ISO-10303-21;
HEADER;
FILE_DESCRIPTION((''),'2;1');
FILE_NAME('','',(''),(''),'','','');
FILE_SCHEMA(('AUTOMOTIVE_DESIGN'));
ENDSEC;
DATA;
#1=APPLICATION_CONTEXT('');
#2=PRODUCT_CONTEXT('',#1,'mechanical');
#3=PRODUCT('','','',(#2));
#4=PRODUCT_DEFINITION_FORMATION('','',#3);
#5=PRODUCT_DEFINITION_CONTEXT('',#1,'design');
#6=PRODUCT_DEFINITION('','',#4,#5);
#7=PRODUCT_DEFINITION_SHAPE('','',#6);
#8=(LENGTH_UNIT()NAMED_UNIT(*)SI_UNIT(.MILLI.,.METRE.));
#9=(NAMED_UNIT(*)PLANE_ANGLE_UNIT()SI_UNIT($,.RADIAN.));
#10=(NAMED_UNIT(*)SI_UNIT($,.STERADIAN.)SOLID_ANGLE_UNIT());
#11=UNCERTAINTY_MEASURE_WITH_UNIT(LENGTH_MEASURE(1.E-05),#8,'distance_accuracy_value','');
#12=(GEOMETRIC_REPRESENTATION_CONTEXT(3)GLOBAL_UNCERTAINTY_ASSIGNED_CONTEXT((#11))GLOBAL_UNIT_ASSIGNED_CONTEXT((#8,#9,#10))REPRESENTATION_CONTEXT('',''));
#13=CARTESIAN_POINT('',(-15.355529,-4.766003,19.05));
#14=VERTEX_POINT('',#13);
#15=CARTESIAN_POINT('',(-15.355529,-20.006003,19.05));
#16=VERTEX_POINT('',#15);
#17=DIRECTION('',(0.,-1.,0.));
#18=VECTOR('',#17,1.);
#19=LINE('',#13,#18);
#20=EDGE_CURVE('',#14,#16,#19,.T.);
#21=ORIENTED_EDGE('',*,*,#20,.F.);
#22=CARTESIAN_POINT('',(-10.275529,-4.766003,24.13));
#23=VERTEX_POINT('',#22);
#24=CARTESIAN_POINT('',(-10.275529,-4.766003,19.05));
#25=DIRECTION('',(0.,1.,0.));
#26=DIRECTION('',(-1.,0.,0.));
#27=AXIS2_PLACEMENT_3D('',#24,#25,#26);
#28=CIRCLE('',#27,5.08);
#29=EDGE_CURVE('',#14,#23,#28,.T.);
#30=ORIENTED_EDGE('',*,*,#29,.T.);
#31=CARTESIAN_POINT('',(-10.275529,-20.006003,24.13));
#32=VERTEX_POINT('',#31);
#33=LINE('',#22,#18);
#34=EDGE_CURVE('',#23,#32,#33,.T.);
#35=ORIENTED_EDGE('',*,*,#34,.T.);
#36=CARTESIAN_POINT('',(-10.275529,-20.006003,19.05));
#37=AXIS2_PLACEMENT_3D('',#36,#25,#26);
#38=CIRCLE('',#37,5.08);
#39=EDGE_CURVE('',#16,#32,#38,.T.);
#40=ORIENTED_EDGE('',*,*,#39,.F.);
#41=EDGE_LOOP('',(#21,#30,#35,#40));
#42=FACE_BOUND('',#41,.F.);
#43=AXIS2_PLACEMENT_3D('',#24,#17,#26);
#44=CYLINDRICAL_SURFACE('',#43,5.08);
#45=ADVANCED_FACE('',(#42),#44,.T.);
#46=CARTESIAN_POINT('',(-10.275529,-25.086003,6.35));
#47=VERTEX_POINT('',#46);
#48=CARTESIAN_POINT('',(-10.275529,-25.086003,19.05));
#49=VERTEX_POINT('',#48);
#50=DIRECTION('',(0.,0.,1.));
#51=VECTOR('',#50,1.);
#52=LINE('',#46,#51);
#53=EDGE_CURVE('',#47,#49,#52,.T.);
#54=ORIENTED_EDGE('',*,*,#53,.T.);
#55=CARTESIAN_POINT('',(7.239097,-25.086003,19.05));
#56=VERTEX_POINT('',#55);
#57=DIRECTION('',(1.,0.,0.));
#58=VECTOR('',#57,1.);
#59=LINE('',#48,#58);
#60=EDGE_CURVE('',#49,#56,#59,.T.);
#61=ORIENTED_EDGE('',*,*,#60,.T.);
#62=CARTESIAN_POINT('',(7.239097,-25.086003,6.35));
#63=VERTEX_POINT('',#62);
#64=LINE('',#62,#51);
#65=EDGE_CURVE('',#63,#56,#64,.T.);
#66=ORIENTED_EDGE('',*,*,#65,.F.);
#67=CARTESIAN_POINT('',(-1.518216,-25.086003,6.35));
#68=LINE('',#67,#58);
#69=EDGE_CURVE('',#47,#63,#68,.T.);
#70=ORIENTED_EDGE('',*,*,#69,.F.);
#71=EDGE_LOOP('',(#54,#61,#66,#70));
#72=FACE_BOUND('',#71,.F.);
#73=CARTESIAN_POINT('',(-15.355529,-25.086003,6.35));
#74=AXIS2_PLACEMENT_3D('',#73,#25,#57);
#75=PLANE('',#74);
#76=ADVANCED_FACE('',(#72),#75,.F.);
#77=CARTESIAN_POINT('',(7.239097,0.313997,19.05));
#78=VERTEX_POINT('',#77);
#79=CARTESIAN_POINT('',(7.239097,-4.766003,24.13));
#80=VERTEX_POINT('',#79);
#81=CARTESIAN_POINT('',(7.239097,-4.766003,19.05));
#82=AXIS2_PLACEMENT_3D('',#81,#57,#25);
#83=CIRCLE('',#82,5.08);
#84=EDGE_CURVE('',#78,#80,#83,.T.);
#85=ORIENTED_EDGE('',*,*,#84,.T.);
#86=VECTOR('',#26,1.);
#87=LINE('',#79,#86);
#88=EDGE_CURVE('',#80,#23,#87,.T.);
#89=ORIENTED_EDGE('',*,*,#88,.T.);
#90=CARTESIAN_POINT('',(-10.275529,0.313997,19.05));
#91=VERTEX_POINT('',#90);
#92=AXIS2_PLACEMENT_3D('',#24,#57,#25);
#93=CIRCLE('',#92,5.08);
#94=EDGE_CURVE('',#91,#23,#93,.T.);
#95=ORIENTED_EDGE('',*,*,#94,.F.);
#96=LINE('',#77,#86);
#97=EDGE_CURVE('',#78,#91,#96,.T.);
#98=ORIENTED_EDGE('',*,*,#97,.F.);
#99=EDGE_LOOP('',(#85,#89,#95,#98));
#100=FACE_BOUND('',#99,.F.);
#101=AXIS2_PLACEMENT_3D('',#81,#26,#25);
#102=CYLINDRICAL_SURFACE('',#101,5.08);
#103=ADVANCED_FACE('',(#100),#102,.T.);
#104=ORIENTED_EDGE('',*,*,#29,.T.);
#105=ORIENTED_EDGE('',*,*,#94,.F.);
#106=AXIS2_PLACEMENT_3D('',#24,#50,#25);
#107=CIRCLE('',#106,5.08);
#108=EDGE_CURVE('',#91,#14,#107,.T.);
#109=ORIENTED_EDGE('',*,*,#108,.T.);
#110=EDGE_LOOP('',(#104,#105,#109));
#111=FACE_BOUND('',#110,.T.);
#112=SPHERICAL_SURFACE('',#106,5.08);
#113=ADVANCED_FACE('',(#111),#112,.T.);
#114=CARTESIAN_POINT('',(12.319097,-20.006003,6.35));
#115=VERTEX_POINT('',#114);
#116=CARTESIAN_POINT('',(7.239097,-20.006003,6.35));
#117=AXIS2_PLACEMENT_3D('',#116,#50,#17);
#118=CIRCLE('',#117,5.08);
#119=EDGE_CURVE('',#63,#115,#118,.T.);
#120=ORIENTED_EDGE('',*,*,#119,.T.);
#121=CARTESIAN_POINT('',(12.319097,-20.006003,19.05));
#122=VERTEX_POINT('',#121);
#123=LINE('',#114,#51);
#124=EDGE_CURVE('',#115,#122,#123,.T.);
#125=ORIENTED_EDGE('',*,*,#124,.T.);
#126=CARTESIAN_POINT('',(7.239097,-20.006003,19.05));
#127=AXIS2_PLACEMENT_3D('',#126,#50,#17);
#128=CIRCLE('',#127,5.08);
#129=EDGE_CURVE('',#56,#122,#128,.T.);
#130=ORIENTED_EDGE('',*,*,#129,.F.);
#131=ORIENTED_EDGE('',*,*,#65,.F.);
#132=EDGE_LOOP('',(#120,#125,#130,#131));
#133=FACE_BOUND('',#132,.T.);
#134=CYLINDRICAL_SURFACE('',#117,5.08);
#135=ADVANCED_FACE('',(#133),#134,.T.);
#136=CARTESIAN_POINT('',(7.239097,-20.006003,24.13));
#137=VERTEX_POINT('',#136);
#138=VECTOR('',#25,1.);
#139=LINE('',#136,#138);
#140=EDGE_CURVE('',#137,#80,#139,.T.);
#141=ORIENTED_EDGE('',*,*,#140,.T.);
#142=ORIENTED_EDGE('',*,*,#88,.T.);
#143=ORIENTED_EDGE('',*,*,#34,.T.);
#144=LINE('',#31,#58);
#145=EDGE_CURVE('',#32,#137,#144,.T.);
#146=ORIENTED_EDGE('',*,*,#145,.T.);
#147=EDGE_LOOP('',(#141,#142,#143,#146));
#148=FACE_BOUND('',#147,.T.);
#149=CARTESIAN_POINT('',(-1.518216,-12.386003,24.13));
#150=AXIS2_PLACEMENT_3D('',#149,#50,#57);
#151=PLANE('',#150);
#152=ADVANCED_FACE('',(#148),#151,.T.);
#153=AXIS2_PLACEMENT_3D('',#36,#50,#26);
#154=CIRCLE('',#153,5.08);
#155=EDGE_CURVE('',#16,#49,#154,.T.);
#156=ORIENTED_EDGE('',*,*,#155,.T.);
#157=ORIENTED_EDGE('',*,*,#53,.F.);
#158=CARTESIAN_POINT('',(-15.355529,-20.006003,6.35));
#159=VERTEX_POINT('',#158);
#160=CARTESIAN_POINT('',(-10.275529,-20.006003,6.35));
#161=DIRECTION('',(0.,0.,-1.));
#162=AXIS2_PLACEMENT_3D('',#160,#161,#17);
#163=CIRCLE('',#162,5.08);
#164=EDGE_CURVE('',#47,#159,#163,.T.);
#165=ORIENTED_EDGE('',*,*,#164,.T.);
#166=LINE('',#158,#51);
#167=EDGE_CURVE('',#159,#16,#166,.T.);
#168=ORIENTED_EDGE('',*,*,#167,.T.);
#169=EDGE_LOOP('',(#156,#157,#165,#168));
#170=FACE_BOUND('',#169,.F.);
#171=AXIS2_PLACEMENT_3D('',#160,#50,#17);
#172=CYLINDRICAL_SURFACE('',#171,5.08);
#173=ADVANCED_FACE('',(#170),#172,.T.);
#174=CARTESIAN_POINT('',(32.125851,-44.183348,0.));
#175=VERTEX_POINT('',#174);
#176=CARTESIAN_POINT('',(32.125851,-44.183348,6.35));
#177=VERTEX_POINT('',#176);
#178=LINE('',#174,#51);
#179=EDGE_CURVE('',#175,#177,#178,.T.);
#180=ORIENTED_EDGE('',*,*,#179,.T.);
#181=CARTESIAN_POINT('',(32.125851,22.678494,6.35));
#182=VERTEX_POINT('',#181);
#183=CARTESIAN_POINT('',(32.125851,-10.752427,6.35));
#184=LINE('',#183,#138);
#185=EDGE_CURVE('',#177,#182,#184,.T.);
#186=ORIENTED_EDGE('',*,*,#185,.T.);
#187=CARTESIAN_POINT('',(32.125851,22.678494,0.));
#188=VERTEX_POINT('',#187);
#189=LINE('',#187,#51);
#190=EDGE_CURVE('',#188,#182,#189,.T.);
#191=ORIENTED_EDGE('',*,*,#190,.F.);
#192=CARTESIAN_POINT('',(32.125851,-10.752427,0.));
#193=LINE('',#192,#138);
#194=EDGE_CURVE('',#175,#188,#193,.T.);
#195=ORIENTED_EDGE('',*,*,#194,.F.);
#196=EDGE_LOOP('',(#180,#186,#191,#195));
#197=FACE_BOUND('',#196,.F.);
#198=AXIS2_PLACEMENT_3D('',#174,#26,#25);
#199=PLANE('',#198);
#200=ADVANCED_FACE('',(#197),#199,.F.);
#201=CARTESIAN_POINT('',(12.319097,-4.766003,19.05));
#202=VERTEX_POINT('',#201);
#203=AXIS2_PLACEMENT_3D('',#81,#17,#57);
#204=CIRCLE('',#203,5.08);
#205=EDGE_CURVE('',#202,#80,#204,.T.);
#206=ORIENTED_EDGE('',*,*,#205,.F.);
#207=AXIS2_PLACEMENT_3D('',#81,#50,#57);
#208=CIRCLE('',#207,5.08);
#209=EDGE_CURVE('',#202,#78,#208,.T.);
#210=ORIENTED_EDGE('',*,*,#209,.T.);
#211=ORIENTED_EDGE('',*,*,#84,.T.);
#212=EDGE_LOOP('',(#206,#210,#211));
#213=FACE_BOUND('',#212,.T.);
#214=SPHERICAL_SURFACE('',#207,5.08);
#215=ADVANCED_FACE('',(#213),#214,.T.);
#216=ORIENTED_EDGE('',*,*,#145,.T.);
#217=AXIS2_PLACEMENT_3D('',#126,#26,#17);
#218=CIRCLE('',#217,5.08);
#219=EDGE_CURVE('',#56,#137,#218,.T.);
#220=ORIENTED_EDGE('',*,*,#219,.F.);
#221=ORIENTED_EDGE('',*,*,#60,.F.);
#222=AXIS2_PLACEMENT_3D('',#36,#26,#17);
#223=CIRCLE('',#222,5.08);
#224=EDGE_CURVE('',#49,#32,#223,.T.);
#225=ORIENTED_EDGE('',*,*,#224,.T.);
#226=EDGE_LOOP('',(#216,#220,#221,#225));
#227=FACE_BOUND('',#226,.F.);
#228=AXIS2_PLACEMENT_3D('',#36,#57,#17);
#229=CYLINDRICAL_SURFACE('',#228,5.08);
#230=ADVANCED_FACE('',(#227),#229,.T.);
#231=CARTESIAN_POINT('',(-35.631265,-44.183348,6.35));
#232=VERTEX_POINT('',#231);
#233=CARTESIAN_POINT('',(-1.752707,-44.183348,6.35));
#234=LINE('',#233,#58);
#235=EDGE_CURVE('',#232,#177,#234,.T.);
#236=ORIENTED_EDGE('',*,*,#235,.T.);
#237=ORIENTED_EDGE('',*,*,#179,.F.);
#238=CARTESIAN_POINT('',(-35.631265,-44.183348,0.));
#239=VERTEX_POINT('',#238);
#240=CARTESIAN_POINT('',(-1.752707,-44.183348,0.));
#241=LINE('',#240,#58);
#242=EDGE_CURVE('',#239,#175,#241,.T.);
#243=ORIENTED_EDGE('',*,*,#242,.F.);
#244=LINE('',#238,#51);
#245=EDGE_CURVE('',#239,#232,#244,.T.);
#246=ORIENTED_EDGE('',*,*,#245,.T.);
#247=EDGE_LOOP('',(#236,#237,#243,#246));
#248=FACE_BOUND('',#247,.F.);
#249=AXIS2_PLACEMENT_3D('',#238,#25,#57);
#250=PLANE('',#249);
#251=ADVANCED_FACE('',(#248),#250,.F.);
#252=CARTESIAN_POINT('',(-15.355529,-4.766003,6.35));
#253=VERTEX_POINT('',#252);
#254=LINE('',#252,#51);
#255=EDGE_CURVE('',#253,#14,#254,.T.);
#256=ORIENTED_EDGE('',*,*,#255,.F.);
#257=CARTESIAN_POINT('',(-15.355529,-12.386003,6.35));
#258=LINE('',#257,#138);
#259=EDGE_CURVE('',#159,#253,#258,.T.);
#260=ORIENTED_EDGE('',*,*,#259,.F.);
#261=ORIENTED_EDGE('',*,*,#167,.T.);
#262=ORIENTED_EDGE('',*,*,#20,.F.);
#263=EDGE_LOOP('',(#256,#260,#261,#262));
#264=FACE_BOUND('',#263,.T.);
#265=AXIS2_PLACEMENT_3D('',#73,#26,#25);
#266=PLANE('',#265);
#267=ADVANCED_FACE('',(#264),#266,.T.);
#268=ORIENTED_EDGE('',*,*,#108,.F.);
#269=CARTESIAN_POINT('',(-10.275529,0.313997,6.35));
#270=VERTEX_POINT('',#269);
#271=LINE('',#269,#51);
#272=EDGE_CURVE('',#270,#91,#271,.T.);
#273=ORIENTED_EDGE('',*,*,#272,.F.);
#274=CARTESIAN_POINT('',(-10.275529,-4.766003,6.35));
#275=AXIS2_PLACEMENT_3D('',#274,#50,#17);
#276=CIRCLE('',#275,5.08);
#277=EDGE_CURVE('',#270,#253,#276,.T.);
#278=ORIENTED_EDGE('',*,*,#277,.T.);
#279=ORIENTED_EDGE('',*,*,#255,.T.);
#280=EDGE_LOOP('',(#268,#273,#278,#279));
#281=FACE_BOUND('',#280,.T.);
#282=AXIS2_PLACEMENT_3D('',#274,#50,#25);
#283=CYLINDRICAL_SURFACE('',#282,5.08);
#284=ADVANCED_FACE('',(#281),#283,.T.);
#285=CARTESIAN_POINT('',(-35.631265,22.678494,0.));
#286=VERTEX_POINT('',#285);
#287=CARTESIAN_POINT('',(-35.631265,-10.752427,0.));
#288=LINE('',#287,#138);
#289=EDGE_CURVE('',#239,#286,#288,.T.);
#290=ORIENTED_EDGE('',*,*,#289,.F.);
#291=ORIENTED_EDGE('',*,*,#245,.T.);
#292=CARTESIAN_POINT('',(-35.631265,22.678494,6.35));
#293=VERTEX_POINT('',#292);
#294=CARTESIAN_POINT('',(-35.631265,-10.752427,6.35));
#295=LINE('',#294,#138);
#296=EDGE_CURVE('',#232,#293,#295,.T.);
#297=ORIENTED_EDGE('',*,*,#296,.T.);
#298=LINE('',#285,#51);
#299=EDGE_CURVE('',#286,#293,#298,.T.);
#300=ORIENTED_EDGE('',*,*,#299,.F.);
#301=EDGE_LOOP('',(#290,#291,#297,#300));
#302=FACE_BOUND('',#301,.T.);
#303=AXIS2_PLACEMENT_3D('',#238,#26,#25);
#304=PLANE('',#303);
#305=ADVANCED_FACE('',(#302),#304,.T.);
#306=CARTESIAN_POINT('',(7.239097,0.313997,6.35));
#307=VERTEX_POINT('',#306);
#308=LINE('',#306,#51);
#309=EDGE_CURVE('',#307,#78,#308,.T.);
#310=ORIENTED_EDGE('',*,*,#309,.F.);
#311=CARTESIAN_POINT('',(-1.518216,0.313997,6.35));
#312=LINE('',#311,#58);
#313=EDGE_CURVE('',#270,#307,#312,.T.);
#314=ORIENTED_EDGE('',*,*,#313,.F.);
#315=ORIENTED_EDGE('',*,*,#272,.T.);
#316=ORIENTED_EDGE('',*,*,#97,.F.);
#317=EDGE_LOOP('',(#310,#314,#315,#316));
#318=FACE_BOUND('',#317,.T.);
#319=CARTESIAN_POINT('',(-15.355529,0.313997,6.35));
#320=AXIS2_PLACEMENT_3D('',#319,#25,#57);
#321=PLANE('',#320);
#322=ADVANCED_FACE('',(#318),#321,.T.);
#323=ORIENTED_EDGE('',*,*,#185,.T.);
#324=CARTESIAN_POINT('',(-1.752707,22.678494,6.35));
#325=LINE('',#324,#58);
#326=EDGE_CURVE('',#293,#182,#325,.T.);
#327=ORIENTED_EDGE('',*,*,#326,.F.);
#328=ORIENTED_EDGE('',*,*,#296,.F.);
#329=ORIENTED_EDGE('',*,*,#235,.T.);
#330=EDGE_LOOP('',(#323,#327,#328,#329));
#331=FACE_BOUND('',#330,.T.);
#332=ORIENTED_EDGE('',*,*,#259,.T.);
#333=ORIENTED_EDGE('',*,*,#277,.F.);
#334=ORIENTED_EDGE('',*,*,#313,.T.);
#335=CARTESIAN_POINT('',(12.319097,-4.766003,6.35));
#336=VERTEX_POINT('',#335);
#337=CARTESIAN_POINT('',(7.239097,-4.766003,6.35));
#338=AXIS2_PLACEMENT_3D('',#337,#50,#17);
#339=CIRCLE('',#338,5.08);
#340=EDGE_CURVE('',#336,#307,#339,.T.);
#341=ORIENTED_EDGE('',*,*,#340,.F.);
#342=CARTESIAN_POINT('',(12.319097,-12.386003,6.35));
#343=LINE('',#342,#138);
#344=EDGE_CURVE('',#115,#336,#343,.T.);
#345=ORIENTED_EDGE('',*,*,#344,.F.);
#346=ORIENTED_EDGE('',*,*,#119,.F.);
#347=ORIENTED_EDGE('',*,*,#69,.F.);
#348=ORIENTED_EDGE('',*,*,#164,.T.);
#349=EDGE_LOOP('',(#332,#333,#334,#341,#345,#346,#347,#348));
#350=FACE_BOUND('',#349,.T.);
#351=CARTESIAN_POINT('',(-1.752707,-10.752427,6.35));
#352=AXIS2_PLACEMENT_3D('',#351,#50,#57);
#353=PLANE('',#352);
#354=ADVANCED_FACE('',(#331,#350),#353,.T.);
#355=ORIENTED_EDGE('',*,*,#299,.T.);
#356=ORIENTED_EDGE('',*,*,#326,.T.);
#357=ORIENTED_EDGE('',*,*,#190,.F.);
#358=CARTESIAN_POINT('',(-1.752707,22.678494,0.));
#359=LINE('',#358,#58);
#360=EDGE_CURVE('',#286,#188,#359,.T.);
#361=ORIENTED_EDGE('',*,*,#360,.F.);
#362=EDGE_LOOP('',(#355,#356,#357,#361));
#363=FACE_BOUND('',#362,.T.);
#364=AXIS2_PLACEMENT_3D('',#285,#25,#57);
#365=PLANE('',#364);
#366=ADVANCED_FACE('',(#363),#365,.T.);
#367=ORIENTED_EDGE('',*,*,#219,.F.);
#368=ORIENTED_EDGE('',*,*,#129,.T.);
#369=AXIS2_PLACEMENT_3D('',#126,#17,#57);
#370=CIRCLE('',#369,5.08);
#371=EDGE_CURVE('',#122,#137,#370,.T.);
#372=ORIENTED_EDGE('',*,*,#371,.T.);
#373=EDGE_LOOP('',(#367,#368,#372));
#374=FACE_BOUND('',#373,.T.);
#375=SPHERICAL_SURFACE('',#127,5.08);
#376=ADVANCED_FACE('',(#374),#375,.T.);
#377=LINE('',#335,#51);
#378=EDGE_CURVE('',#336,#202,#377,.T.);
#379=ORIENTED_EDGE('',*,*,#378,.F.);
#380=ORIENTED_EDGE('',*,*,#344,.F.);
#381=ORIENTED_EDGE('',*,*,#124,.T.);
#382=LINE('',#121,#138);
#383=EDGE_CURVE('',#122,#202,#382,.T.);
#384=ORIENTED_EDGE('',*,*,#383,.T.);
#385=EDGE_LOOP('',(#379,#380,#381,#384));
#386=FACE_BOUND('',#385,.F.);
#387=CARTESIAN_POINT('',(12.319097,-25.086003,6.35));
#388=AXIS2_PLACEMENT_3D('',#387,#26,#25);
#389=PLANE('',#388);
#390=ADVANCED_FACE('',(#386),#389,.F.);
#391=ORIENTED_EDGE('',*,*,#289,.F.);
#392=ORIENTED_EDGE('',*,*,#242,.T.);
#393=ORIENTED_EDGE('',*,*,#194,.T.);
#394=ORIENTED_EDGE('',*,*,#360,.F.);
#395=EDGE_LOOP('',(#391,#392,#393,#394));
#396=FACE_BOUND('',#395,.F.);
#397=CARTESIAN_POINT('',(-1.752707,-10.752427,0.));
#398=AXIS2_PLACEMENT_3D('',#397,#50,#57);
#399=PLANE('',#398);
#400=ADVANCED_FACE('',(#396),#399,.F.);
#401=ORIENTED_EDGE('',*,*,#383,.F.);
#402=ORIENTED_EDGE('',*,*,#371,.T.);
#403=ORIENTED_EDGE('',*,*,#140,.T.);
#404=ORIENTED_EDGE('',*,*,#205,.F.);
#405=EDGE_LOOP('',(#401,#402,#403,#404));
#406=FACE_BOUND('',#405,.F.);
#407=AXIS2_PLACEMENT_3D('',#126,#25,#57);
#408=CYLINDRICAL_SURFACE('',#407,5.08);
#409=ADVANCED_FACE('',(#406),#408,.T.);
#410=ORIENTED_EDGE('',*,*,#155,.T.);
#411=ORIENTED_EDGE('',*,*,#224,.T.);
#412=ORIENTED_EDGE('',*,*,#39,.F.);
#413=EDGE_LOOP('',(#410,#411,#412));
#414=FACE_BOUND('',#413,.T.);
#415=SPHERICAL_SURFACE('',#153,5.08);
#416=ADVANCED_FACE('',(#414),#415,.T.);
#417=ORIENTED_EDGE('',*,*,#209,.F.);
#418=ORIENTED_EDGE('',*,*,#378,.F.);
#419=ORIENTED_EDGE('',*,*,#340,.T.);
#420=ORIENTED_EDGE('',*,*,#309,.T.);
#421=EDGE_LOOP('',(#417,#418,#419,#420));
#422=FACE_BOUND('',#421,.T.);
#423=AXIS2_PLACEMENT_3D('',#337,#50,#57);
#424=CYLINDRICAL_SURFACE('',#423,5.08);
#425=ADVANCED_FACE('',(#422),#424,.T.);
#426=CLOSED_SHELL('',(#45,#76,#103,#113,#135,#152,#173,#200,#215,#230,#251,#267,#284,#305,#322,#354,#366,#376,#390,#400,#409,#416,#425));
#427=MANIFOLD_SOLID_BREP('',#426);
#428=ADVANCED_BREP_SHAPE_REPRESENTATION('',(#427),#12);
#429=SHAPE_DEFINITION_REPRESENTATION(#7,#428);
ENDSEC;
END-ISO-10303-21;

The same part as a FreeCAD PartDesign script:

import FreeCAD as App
import Part
import Sketcher
from FreeCAD import Vector
Q = App.Units.Quantity


def edges_at(feature, points):
    """Names of the edges that pass closest to the given points."""
    edges = feature.Shape.Edges
    near = lambda p: min(range(len(edges)), key=lambda i: edges[i].distToShape(Part.Vertex(*p))[0])
    return sorted({f"Edge{near(p) + 1}" for p in points})

doc = App.newDocument("Part")
params = doc.addObject("Spreadsheet::Sheet", "Params")
for row, (alias, value) in enumerate([
    ("pad1_length", "0.25 in"),
    ("sketch2_height", "1 in"),
    ("pad2_length", "0.7 in"),
    ("fillet_radius", "0.2 in"),
    ("fillet2_radius", "0.2 in"),
], start=1):
    params.set(f"A{row}", alias)
    params.set(f"B{row}", "=" + value)
    params.setAlias(f"B{row}", alias)

body = doc.addObject("PartDesign::Body", "Body")

# Sketch on XY plane
sketch1 = body.newObject("Sketcher::SketchObject", "Sketch")
sketch1.AttachmentSupport = (doc.getObject("XY_Plane"), [""])
sketch1.MapMode = "FlatFace"
sketch1.addGeometry([
    Part.LineSegment(Vector(-35.631265, 22.678494, 0), Vector(-35.631265, -44.183348, 0)),
    Part.LineSegment(Vector(-35.631265, -44.183348, 0), Vector(32.125851, -44.183348, 0)),
    Part.LineSegment(Vector(32.125851, -44.183348, 0), Vector(32.125851, 22.678494, 0)),
    Part.LineSegment(Vector(32.125851, 22.678494, 0), Vector(-35.631265, 22.678494, 0)),
], False)
sketch1.addConstraint([
    Sketcher.Constraint("Coincident", 0, 2, 1, 1),
    Sketcher.Constraint("Coincident", 1, 2, 2, 1),
    Sketcher.Constraint("Coincident", 2, 2, 3, 1),
    Sketcher.Constraint("Coincident", 3, 2, 0, 1),
    Sketcher.Constraint("Vertical", 0),
    Sketcher.Constraint("Horizontal", 1),
    Sketcher.Constraint("Vertical", 2),
    Sketcher.Constraint("Horizontal", 3),
    Sketcher.Constraint("DistanceY", 0, 2, 0, 1, 66.861842),
    Sketcher.Constraint("DistanceX", 1, 1, 1, 2, 67.757116),
    Sketcher.Constraint("DistanceY", 0, 2, -1, 1, 44.183348),
    Sketcher.Constraint("DistanceX", -1, 1, 1, 2, 32.125851),
])
pad1 = body.newObject("PartDesign::Pad", "Pad")
pad1.Profile = sketch1
pad1.setExpression("Length", "Params.pad1_length")

# Sketch on XY plane
sketch2 = body.newObject("Sketcher::SketchObject", "Sketch001")
sketch2.AttachmentSupport = (doc.getObject("XY_Plane"), [""])
sketch2.MapMode = "FlatFace"
sketch2.AttachmentOffset = App.Placement(Vector(0, 0, 0.25 * 25.4), App.Rotation())
sketch2.addGeometry([
    Part.LineSegment(Vector(-15.355529, 0.313997, 0), Vector(-15.355529, -25.086003, 0)),
    Part.LineSegment(Vector(-15.355529, -25.086003, 0), Vector(12.319097, -25.086003, 0)),
    Part.LineSegment(Vector(12.319097, -25.086003, 0), Vector(12.319097, 0.313997, 0)),
    Part.LineSegment(Vector(12.319097, 0.313997, 0), Vector(-15.355529, 0.313997, 0)),
], False)
sketch2.addConstraint([
    Sketcher.Constraint("Coincident", 0, 2, 1, 1),
    Sketcher.Constraint("Coincident", 1, 2, 2, 1),
    Sketcher.Constraint("Coincident", 2, 2, 3, 1),
    Sketcher.Constraint("Coincident", 3, 2, 0, 1),
    Sketcher.Constraint("Vertical", 0),
    Sketcher.Constraint("Horizontal", 1),
    Sketcher.Constraint("Vertical", 2),
    Sketcher.Constraint("Horizontal", 3),
    Sketcher.Constraint("DistanceY", 0, 2, 0, 1, Q("1 in")),
    Sketcher.Constraint("DistanceX", 1, 1, 1, 2, 27.674626),
    Sketcher.Constraint("DistanceX", 0, 2, -1, 1, 15.355529),
    Sketcher.Constraint("DistanceY", 0, 2, -1, 1, 25.086003),
])
sketch2.setExpression("Constraints[8]", "Params.sketch2_height")
pad2 = body.newObject("PartDesign::Pad", "Pad001")
pad2.Profile = sketch2
pad2.setExpression("Length", "Params.pad2_length")
doc.recompute()

fillet = body.newObject("PartDesign::Fillet", "Fillet")
fillet.Base = (pad2, edges_at(pad2, [
    (12.319, -25.086, 15.24),
    (-15.356, -25.086, 15.24),
    (-15.356, 0.314, 15.24),
    (12.319, 0.314, 15.24),
]))
fillet.setExpression("Radius", "Params.fillet_radius")
doc.recompute()

fillet2 = body.newObject("PartDesign::Fillet", "Fillet001")
fillet2.Base = (fillet, edges_at(fillet, [(-1.518, -25.086, 24.13)]))
fillet2.setExpression("Radius", "Params.fillet2_radius")

doc.recompute()
